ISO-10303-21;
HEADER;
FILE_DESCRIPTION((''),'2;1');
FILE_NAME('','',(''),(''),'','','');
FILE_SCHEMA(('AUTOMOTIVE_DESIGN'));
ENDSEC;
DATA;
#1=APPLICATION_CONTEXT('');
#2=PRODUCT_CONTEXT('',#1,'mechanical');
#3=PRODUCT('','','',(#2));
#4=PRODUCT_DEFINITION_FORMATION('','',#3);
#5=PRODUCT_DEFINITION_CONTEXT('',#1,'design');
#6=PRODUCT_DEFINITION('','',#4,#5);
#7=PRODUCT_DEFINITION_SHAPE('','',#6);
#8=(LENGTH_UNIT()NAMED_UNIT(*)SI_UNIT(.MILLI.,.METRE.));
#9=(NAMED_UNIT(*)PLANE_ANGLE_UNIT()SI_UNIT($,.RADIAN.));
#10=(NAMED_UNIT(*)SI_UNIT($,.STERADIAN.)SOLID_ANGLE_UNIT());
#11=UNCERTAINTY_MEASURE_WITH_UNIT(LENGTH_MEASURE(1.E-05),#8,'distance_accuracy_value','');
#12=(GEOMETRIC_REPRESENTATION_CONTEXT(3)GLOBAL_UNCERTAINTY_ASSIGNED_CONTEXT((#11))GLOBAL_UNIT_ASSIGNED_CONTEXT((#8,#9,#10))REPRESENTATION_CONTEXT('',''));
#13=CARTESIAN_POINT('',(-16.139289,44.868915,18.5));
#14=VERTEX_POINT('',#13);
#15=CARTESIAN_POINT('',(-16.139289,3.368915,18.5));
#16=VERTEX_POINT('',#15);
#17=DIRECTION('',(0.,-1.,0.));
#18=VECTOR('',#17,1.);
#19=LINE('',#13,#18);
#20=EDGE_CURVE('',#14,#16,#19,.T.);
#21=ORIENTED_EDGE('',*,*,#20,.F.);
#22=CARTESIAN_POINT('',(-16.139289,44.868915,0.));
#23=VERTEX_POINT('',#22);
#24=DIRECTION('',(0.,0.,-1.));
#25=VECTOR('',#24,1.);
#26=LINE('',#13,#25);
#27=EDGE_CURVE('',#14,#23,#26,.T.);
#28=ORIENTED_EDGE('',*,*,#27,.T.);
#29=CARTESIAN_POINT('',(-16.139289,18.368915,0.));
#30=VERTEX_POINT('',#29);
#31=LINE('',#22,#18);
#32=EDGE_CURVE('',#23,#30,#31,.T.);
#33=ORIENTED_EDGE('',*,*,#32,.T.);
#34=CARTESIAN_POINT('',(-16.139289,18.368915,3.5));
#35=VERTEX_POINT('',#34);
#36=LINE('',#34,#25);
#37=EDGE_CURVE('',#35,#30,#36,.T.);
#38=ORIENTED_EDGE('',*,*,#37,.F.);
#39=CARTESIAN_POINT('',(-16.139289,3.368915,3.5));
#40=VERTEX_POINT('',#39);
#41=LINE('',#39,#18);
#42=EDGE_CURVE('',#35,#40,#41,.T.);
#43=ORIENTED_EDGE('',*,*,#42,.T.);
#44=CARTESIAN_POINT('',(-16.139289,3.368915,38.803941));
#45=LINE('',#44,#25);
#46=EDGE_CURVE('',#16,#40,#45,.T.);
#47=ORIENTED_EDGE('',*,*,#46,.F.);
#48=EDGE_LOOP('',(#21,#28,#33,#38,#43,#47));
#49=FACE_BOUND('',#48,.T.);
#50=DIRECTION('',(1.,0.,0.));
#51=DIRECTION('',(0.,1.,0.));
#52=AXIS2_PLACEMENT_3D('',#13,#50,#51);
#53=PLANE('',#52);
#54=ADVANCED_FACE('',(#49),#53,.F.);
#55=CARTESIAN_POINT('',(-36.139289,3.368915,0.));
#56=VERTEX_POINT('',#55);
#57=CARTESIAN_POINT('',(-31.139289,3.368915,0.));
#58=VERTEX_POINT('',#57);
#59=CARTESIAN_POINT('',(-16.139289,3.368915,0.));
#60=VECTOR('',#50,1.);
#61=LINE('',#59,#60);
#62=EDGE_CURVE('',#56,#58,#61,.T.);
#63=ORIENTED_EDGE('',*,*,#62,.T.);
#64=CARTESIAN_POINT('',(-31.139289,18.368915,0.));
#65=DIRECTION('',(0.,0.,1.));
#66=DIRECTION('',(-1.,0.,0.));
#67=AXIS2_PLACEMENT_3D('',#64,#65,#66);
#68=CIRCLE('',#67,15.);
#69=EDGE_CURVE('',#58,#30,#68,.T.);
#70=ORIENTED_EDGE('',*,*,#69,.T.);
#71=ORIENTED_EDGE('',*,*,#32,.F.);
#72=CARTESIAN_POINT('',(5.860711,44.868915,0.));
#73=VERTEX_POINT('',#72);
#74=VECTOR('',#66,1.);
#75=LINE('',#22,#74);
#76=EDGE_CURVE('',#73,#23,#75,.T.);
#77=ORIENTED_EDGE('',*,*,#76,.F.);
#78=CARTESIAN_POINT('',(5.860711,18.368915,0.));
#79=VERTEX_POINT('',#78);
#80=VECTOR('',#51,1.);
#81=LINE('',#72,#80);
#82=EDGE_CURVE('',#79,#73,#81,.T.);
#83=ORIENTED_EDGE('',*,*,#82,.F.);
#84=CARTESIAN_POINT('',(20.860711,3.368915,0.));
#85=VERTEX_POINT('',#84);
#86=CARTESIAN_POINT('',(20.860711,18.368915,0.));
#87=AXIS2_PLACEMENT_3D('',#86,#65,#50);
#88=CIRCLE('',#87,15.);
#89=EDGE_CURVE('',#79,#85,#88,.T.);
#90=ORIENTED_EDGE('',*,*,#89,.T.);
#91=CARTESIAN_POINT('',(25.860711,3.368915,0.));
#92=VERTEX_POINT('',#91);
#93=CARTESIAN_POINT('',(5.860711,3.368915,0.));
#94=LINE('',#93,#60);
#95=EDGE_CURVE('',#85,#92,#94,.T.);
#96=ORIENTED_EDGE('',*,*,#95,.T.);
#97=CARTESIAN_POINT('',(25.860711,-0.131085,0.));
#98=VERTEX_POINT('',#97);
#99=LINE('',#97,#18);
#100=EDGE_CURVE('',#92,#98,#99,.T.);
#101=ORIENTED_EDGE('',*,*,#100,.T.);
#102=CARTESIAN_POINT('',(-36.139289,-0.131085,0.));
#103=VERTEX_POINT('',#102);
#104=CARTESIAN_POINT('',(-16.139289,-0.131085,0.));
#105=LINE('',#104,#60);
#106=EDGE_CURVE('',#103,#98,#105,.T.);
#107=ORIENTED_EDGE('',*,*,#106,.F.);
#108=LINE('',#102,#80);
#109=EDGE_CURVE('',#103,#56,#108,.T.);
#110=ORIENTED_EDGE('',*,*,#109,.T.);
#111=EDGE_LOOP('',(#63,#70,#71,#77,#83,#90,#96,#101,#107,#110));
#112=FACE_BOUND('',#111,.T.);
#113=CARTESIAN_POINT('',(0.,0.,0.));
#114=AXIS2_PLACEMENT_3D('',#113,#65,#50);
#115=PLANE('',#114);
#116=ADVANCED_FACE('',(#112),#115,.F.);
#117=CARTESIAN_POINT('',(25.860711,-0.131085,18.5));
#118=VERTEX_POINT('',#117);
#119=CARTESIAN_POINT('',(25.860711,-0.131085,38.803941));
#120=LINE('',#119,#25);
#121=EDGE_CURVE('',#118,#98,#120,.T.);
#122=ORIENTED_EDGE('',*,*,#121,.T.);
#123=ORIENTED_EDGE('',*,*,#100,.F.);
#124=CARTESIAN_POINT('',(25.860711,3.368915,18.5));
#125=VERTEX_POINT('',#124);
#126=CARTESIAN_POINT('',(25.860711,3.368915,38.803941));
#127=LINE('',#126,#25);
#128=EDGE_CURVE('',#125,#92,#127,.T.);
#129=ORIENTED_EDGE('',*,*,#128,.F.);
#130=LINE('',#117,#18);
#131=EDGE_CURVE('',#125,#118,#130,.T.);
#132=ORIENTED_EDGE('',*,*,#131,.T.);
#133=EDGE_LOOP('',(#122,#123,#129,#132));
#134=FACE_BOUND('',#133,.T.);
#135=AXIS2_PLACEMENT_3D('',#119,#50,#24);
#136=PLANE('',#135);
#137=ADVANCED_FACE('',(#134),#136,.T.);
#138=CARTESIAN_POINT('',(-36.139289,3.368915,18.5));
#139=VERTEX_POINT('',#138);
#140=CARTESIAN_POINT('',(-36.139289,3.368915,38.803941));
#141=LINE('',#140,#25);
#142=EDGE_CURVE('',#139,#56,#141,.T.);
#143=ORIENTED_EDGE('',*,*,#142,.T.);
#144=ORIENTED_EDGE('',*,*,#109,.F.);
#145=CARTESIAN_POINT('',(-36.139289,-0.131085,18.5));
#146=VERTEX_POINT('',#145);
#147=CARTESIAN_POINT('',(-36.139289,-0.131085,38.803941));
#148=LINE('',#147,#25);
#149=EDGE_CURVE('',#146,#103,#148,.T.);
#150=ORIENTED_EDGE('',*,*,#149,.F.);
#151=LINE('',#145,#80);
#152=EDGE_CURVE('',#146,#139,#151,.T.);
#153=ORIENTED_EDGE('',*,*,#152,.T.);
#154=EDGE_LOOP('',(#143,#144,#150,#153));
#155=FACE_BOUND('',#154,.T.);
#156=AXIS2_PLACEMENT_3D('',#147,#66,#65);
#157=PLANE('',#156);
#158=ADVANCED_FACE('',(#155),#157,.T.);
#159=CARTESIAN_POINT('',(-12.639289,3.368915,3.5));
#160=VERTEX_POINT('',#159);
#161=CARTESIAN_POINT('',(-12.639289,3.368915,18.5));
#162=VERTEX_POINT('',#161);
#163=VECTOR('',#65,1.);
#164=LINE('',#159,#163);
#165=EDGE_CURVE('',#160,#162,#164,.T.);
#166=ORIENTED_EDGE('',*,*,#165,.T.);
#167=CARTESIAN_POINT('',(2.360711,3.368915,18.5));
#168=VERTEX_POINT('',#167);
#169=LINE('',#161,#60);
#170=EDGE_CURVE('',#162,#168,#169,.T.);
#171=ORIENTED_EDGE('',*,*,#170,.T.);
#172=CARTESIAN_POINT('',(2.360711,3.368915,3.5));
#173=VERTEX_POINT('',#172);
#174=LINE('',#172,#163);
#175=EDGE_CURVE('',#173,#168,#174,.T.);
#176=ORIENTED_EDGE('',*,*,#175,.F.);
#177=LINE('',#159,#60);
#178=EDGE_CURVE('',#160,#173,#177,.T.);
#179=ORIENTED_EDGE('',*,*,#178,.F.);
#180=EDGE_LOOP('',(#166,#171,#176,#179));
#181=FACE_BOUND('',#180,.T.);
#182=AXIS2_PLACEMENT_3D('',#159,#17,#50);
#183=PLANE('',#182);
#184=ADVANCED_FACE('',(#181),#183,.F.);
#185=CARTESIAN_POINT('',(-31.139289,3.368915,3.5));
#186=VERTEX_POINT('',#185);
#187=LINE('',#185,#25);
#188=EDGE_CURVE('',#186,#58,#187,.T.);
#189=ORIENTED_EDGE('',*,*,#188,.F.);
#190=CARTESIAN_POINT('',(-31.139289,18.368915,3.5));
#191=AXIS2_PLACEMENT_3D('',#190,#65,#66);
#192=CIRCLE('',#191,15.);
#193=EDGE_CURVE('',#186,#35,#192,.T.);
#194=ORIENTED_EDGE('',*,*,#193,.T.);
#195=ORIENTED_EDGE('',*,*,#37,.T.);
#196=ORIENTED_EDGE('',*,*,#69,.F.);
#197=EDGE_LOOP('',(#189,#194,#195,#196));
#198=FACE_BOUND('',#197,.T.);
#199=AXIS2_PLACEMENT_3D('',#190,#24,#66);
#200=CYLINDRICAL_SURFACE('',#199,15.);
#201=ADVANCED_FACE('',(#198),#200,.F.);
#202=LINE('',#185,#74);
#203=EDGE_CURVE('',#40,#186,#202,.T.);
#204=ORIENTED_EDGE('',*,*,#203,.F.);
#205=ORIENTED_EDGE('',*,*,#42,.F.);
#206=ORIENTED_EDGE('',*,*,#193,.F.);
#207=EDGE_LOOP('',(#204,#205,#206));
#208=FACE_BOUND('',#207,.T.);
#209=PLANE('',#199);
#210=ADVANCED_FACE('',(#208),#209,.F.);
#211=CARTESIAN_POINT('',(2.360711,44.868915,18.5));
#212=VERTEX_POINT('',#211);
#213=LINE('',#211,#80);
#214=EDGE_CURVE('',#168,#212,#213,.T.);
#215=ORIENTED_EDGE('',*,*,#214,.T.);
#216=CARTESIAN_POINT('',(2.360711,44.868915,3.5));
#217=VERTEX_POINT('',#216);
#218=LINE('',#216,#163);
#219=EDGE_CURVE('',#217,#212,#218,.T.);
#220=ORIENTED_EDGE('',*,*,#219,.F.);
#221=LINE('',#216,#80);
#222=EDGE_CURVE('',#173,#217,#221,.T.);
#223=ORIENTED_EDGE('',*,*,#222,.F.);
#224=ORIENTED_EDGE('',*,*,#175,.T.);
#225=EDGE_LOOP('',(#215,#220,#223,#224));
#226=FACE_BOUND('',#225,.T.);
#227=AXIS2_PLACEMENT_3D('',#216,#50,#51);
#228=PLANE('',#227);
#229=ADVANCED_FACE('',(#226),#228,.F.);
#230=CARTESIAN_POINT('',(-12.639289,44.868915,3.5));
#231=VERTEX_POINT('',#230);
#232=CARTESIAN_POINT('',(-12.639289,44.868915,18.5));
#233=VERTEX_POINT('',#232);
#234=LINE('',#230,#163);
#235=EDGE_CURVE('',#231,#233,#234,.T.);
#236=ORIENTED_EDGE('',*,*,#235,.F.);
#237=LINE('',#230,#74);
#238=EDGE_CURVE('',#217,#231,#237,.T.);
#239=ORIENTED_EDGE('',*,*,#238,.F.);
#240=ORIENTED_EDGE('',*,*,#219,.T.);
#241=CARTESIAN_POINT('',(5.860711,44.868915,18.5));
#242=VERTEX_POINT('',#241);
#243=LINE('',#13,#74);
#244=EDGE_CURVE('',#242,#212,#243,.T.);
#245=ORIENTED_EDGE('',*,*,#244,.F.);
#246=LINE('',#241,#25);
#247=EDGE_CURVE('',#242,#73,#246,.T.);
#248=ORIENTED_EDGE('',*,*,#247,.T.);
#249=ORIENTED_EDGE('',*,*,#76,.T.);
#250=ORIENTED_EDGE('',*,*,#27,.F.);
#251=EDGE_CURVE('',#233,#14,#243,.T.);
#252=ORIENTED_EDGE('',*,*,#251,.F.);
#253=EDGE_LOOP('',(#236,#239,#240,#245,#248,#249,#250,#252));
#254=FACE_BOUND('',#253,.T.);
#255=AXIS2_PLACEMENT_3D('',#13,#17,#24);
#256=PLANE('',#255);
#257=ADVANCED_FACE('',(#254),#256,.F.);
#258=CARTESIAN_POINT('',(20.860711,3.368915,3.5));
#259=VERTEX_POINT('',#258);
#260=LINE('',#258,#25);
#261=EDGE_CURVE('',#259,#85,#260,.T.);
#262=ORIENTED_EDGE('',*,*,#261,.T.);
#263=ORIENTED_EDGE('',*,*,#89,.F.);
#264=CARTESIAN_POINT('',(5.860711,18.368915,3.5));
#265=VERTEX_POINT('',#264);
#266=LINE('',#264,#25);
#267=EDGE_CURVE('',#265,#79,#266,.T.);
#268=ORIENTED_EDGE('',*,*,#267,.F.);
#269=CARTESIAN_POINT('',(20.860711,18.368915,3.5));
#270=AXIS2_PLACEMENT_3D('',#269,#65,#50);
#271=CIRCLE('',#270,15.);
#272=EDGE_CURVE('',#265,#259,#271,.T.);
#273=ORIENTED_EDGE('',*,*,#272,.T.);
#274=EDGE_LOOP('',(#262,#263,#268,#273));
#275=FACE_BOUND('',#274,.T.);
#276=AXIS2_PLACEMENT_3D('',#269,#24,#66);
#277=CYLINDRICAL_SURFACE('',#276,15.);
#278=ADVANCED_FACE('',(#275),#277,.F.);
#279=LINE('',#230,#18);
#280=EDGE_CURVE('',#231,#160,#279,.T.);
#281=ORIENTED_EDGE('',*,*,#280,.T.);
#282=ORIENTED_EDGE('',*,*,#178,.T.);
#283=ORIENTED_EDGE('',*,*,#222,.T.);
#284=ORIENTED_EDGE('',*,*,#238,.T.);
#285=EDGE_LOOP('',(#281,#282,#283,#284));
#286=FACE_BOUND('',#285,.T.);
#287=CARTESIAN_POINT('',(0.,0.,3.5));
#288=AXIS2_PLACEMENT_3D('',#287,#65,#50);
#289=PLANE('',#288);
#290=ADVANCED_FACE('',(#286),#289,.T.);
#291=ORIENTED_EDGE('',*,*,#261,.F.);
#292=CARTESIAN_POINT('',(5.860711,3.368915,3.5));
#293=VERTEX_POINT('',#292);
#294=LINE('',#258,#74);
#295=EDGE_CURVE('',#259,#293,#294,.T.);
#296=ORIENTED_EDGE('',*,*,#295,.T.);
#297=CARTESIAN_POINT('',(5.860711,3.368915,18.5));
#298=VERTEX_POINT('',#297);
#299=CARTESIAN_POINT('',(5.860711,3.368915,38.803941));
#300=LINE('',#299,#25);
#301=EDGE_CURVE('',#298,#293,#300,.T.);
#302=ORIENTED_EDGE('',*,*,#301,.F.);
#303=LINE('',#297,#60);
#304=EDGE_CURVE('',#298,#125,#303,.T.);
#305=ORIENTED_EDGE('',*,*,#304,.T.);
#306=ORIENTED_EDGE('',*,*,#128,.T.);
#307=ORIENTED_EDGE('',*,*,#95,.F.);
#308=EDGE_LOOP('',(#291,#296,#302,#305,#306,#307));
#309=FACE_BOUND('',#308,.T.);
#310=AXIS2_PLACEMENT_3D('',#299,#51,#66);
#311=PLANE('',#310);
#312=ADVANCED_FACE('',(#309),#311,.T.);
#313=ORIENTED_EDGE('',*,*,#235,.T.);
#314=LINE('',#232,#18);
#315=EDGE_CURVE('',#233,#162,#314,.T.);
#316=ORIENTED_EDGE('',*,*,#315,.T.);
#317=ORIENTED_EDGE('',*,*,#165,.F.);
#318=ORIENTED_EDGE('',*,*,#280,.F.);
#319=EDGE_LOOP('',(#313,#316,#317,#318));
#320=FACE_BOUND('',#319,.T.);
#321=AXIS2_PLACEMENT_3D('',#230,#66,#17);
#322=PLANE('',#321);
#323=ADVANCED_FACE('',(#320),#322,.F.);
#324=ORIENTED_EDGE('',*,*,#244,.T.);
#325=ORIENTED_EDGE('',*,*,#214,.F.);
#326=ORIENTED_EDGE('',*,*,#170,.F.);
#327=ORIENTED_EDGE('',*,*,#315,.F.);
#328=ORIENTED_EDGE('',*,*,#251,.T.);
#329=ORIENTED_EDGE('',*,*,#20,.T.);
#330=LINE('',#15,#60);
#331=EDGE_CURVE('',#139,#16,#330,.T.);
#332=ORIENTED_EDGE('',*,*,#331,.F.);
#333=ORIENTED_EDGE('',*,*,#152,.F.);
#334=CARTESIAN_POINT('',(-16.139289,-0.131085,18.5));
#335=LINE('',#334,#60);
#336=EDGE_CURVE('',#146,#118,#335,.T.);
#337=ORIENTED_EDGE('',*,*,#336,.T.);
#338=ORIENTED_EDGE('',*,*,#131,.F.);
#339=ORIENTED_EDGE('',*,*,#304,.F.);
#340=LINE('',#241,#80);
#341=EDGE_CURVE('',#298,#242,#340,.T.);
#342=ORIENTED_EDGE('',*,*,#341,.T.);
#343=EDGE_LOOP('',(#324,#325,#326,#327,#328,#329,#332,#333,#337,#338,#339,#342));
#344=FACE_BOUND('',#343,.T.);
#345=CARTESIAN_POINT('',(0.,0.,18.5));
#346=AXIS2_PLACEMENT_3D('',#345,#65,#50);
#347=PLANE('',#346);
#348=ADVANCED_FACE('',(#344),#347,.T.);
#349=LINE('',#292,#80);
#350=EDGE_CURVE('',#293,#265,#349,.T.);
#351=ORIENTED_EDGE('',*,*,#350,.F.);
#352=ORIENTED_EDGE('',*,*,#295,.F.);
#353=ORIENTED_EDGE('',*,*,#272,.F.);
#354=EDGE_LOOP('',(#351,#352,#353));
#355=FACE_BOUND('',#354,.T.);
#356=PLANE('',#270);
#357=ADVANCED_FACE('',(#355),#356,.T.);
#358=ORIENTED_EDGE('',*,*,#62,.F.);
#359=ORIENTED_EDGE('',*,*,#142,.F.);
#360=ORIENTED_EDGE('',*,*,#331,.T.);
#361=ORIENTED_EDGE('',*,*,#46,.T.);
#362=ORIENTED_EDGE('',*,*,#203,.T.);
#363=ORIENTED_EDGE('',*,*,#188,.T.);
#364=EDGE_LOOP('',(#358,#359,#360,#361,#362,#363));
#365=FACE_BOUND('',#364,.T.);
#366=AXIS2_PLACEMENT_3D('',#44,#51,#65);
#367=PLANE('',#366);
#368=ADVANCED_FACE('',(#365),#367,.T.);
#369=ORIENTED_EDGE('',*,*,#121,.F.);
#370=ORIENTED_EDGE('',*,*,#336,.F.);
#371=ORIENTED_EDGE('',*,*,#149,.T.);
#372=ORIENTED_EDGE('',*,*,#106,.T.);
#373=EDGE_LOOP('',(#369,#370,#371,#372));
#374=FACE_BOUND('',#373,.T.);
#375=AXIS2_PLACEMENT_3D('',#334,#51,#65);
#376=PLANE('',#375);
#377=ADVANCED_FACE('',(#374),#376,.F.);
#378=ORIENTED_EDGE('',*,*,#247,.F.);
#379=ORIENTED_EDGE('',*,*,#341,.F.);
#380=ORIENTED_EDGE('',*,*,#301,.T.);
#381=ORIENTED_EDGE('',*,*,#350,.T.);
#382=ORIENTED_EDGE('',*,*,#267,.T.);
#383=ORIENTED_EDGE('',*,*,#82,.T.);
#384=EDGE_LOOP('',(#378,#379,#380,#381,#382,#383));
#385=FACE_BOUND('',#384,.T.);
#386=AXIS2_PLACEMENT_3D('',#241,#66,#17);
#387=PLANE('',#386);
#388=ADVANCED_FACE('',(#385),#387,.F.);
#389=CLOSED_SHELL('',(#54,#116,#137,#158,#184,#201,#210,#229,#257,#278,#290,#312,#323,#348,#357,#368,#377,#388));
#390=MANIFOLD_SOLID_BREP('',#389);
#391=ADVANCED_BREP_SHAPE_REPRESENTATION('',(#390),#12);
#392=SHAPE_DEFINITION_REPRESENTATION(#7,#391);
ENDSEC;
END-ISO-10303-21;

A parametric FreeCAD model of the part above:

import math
import FreeCAD as App
import Part
import Sketcher

V = App.Vector

doc = App.newDocument("Part")
body = doc.addObject("PartDesign::Body", "Body")

sketch1 = body.newObject("Sketcher::SketchObject", "Sketch")
sketch1.AttachmentSupport = (doc.getObject("XY_Plane"), [""])
sketch1.MapMode = "FlatFace"
sketch1.addGeometry([
    Part.LineSegment(V(-16, 45, 0), V(-16, 0, 0)),
    Part.LineSegment(V(-16, 0, 0), V(6, 0, 0)),
    Part.LineSegment(V(6, 0, 0), V(6, 45, 0)),
    Part.LineSegment(V(6, 45, 0), V(-16, 45, 0)),
], False)
sketch1.addConstraint([
    Sketcher.Constraint("Coincident", 0, 2, 1, 1),
    Sketcher.Constraint("Coincident", 1, 2, 2, 1),
    Sketcher.Constraint("Coincident", 2, 2, 3, 1),
    Sketcher.Constraint("Coincident", 3, 2, 0, 1),
    Sketcher.Constraint("Vertical", 0),
    Sketcher.Constraint("Horizontal", 1),
    Sketcher.Constraint("Vertical", 2),
    Sketcher.Constraint("Horizontal", 3),
    Sketcher.Constraint("DistanceX", 1, 1, 1, 2, 22.0),
    Sketcher.Constraint("DistanceY", 0, 2, 0, 1, 45.0),
    Sketcher.Constraint("DistanceX", 0, 2, -1, 1, 16.139289),
    Sketcher.Constraint("DistanceY", 0, 2, -1, 1, 0.131085),
])
pad1 = body.newObject("PartDesign::Pad", "Pad")
pad1.Profile = sketch1
pad1.Length = 18.5

sketch2 = body.newObject("Sketcher::SketchObject", "Sketch001")
sketch2.AttachmentSupport = (doc.getObject("XY_Plane"), [""])
sketch2.MapMode = "FlatFace"
sketch2.AttachmentOffset = App.Placement(V(0, 0, 18.5), App.Rotation())
sketch2.addGeometry([
    Part.LineSegment(V(-13, 45, 0), V(-13, 3, 0)),
    Part.LineSegment(V(-13, 3, 0), V(2, 3, 0)),
    Part.LineSegment(V(2, 3, 0), V(2, 45, 0)),
    Part.LineSegment(V(2, 45, 0), V(-13, 45, 0)),
], False)
sketch2.addConstraint([
    Sketcher.Constraint("Coincident", 0, 2, 1, 1),
    Sketcher.Constraint("Coincident", 1, 2, 2, 1),
    Sketcher.Constraint("Coincident", 2, 2, 3, 1),
    Sketcher.Constraint("Coincident", 3, 2, 0, 1),
    Sketcher.Constraint("Vertical", 0),
    Sketcher.Constraint("Horizontal", 1),
    Sketcher.Constraint("Vertical", 2),
    Sketcher.Constraint("Horizontal", 3),
    Sketcher.Constraint("DistanceX", 1, 1, 1, 2, 15.0),
    Sketcher.Constraint("DistanceY", 0, 2, 0, 1, 41.5),
    Sketcher.Constraint("DistanceX", 0, 2, -1, 1, 12.639289),
    Sketcher.Constraint("DistanceY", -1, 1, 0, 2, 3.368915),
])
pocket1 = body.newObject("PartDesign::Pocket", "Pocket")
pocket1.Profile = sketch2
pocket1.Length = 15

sketch3 = body.newObject("Sketcher::SketchObject", "Sketch002")
sketch3.AttachmentSupport = (doc.getObject("XY_Plane"), [""])
sketch3.MapMode = "FlatFace"
sketch3.addGeometry([
    Part.LineSegment(V(-16.1, 3.4, 0), V(-16.1, -0.1, 0)),
    Part.LineSegment(V(-16.1, -0.1, 0), V(-36.1, -0.1, 0)),
    Part.LineSegment(V(-36.1, -0.1, 0), V(-36.1, 3.4, 0)),
    Part.LineSegment(V(-36.1, 3.4, 0), V(-16.1, 3.4, 0)),
    Part.LineSegment(V(25.9, 3.4, 0), V(25.9, -0.1, 0)),
    Part.LineSegment(V(25.9, -0.1, 0), V(5.9, -0.1, 0)),
    Part.LineSegment(V(5.9, -0.1, 0), V(5.9, 3.4, 0)),
    Part.LineSegment(V(5.9, 3.4, 0), V(25.9, 3.4, 0)),
], False)
sketch3.addConstraint([
    Sketcher.Constraint("Coincident", 0, 2, 1, 1),
    Sketcher.Constraint("Coincident", 1, 2, 2, 1),
    Sketcher.Constraint("Coincident", 2, 2, 3, 1),
    Sketcher.Constraint("Coincident", 3, 2, 0, 1),
    Sketcher.Constraint("Coincident", 4, 2, 5, 1),
    Sketcher.Constraint("Coincident", 5, 2, 6, 1),
    Sketcher.Constraint("Coincident", 6, 2, 7, 1),
    Sketcher.Constraint("Coincident", 7, 2, 4, 1),
    Sketcher.Constraint("Vertical", 0),
    Sketcher.Constraint("Horizontal", 1),
    Sketcher.Constraint("Vertical", 2),
    Sketcher.Constraint("Horizontal", 3),
    Sketcher.Constraint("Vertical", 4),
    Sketcher.Constraint("Horizontal", 5),
    Sketcher.Constraint("Vertical", 6),
    Sketcher.Constraint("Horizontal", 7),
    Sketcher.Constraint("Horizontal", 1, 2, 4, 2),
    Sketcher.Constraint("Horizontal", 3, 2, 6, 2),
    Sketcher.Constraint("Equal", 3, 5),
    Sketcher.Constraint("DistanceX", 1, 2, 1, 1, 20.0),
    Sketcher.Constraint("DistanceY", 0, 2, 0, 1, 3.5),
    Sketcher.Constraint("DistanceX", 0, 2, 4, 2, 42.0),
    Sketcher.Constraint("DistanceX", 0, 2, -1, 1, 16.139289),
    Sketcher.Constraint("DistanceY", 0, 2, -1, 1, 0.131085),
])
pad2 = body.newObject("PartDesign::Pad", "Pad001")
pad2.Profile = sketch3
pad2.Length = 18.5

sketch4 = body.newObject("Sketcher::SketchObject", "Sketch003")
sketch4.AttachmentSupport = (doc.getObject("XY_Plane"), [""])
sketch4.MapMode = "FlatFace"
sketch4.addGeometry([
    Part.LineSegment(V(-16, 3, 0), V(-31, 3, 0)),
    Part.ArcOfCircle(Part.Circle(V(-31, 18, 0), V(0, 0, 1), 15), math.radians(-90), math.radians(0)),
    Part.LineSegment(V(-16, 18, 0), V(-16, 3, 0)),
    Part.LineSegment(V(21, 3, 0), V(6, 3, 0)),
    Part.LineSegment(V(6, 3, 0), V(6, 18, 0)),
    Part.ArcOfCircle(Part.Circle(V(21, 18, 0), V(0, 0, 1), 15), math.radians(180), math.radians(270)),
], False)
sketch4.addConstraint([
    Sketcher.Constraint("Tangent", 0, 2, 1, 1),
    Sketcher.Constraint("Tangent", 1, 2, 2, 1),
    Sketcher.Constraint("Coincident", 2, 2, 0, 1),
    Sketcher.Constraint("Coincident", 3, 2, 4, 1),
    Sketcher.Constraint("Tangent", 4, 2, 5, 1),
    Sketcher.Constraint("Tangent", 5, 2, 3, 1),
    Sketcher.Constraint("Horizontal", 0),
    Sketcher.Constraint("Vertical", 2),
    Sketcher.Constraint("Horizontal", 3),
    Sketcher.Constraint("Vertical", 4),
    Sketcher.Constraint("Equal", 1, 5),
    Sketcher.Constraint("Horizontal", 1, 3, 5, 3),
    Sketcher.Constraint("Radius", 1, 15.0),
    Sketcher.Constraint("DistanceX", 1, 3, 5, 3, 52.0),
    Sketcher.Constraint("DistanceX", 1, 3, -1, 1, 31.139289),
    Sketcher.Constraint("DistanceY", -1, 1, 1, 3, 18.368915),
])
pad3 = body.newObject("PartDesign::Pad", "Pad002")
pad3.Profile = sketch4
pad3.Length = 3.5

doc.recompute()
